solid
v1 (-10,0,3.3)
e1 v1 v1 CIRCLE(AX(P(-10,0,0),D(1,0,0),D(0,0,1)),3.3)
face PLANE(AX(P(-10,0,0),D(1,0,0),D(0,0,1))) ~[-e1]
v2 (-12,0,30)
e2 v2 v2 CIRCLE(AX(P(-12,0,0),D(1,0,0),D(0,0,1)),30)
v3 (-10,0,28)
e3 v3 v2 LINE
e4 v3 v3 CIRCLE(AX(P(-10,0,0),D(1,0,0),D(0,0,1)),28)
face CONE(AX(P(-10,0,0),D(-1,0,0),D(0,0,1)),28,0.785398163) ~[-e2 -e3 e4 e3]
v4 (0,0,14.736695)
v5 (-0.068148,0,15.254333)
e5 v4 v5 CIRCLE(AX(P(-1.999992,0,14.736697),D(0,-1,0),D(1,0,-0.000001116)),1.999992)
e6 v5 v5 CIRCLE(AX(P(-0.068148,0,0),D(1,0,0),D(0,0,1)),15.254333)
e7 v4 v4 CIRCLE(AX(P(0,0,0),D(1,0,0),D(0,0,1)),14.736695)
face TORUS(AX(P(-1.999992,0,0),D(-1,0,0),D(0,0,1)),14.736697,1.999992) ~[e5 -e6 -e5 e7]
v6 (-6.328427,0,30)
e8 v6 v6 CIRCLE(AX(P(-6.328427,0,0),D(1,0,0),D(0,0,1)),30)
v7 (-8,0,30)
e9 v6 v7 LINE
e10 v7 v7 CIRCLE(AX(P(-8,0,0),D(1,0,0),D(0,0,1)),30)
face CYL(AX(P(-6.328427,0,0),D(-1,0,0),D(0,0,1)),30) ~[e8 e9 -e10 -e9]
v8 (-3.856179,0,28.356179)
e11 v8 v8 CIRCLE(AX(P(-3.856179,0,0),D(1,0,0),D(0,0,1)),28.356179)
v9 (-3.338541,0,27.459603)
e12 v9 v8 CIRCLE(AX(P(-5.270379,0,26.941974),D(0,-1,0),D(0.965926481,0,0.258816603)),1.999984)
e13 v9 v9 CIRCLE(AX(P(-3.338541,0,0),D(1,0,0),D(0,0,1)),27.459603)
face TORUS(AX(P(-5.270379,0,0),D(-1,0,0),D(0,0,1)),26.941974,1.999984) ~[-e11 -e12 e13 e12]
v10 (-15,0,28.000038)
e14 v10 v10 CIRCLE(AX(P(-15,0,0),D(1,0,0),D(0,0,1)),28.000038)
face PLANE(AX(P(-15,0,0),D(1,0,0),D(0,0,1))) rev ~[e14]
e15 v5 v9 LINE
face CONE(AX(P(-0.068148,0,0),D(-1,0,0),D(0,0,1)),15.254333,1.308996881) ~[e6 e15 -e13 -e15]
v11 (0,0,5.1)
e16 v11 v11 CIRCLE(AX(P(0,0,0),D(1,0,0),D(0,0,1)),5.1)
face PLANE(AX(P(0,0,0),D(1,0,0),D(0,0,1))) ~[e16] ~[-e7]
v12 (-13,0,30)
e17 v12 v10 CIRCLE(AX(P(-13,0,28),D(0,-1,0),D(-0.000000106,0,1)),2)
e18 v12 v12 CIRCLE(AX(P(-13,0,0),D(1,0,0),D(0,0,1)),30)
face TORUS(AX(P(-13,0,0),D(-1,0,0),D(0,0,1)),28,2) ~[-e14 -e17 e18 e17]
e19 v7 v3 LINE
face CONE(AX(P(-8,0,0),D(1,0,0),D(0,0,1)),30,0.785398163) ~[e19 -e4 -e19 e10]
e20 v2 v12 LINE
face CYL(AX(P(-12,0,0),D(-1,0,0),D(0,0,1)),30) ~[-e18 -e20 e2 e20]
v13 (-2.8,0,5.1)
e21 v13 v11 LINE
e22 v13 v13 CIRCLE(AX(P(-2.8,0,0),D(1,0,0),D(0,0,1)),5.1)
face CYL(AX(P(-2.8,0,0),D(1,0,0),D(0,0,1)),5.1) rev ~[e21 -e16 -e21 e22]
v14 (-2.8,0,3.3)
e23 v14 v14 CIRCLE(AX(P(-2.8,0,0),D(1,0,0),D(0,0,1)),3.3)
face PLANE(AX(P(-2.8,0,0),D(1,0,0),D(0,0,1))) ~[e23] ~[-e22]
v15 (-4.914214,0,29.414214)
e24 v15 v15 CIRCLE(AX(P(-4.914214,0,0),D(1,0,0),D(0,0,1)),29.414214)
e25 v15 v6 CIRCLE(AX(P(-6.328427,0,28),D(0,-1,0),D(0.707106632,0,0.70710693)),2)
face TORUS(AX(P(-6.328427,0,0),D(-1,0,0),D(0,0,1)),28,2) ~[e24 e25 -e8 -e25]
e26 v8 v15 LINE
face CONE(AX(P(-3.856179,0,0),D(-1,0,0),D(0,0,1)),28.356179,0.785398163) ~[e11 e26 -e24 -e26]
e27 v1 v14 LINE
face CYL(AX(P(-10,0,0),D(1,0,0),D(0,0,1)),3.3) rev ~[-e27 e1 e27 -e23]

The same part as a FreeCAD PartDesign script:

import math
import FreeCAD as App
import Part
import Sketcher
Q = App.Units.Quantity

doc = App.newDocument("Part")
body = doc.addObject("PartDesign::Body", "Body")

sketch1 = body.newObject("Sketcher::SketchObject", "Sketch")
sketch1.AttachmentSupport = (doc.getObject("XZ_Plane"), [""])
sketch1.MapMode = "FlatFace"
sketch1.addGeometry([
    Part.ArcOfCircle(Part.Circle(App.Vector(-1.999992, 14.736697, 0), App.Vector(0, 0, 1), 1.999992), math.radians(-0.000064), math.radians(14.999991)),
    Part.LineSegment(App.Vector(-0.068148, 15.254333, 0), App.Vector(-3.338541, 27.459603, 0)),
    Part.ArcOfCircle(Part.Circle(App.Vector(-5.270379, 26.941974, 0), App.Vector(0, 0, 1), 1.999984), math.radians(14.999855), math.radians(45.000107)),
    Part.LineSegment(App.Vector(-3.856179, 28.356179, 0), App.Vector(-4.914214, 29.414214, 0)),
    Part.ArcOfCircle(Part.Circle(App.Vector(-6.328427, 28, 0), App.Vector(0, 0, 1), 2), math.radians(45.000012), math.radians(90.000002)),
    Part.LineSegment(App.Vector(-6.328427, 30, 0), App.Vector(-8, 30, 0)),
    Part.LineSegment(App.Vector(-8, 30, 0), App.Vector(-10, 28, 0)),
    Part.LineSegment(App.Vector(-10, 28, 0), App.Vector(-12, 30, 0)),
    Part.LineSegment(App.Vector(-12, 30, 0), App.Vector(-13, 30, 0)),
    Part.ArcOfCircle(Part.Circle(App.Vector(-13, 28, 0), App.Vector(0, 0, 1), 2), math.radians(90.000006), math.radians(179.998905)),
    Part.LineSegment(App.Vector(-15, 28.000038, 0), App.Vector(-15, 0, 0)),
    Part.LineSegment(App.Vector(-15, 0, 0), App.Vector(-10, 0, 0)),
    Part.LineSegment(App.Vector(-10, 0, 0), App.Vector(-10, 3.3, 0)),
    Part.LineSegment(App.Vector(-10, 3.3, 0), App.Vector(-2.8, 3.3, 0)),
    Part.LineSegment(App.Vector(-2.8, 3.3, 0), App.Vector(-2.8, 5.1, 0)),
    Part.LineSegment(App.Vector(-2.8, 5.1, 0), App.Vector(0, 5.1, 0)),
    Part.LineSegment(App.Vector(0, 5.1, 0), App.Vector(0, 14.736695, 0)),
], False)
sketch1.addConstraint([
    Sketcher.Constraint("Tangent", 0, 2, 1, 1),
    Sketcher.Constraint("Coincident", 1, 2, 2, 1),
    Sketcher.Constraint("Tangent", 2, 2, 3, 1),
    Sketcher.Constraint("Tangent", 3, 2, 4, 1),
    Sketcher.Constraint("Tangent", 4, 2, 5, 1),
    Sketcher.Constraint("Coincident", 5, 2, 6, 1),
    Sketcher.Constraint("Coincident", 6, 2, 7, 1),
    Sketcher.Constraint("Coincident", 7, 2, 8, 1),
    Sketcher.Constraint("Tangent", 8, 2, 9, 1),
    Sketcher.Constraint("Coincident", 9, 2, 10, 1),
    Sketcher.Constraint("Coincident", 10, 2, 11, 1),
    Sketcher.Constraint("Coincident", 11, 2, 12, 1),
    Sketcher.Constraint("Coincident", 12, 2, 13, 1),
    Sketcher.Constraint("Coincident", 13, 2, 14, 1),
    Sketcher.Constraint("Coincident", 14, 2, 15, 1),
    Sketcher.Constraint("Coincident", 15, 2, 16, 1),
    Sketcher.Constraint("Tangent", 16, 2, 0, 1),
    Sketcher.Constraint("Horizontal", 5),
    Sketcher.Constraint("Horizontal", 8),
    Sketcher.Constraint("Vertical", 10),
    Sketcher.Constraint("Horizontal", 11),
    Sketcher.Constraint("Vertical", 12),
    Sketcher.Constraint("Horizontal", 13),
    Sketcher.Constraint("Vertical", 14),
    Sketcher.Constraint("Horizontal", 15),
    Sketcher.Constraint("Vertical", 16),
    Sketcher.Constraint("Equal", 4, 9),
    Sketcher.Constraint("PointOnObject", 10, 2, -1),
    Sketcher.Constraint("PointOnObject", 15, 2, -2),
    Sketcher.Constraint("Perpendicular", 3, 6),
    Sketcher.Constraint("Perpendicular", 6, 7),
    Sketcher.Constraint("Horizontal", 4, 3, 9, 3),
    Sketcher.Constraint("Horizontal", 9, 3, 6, 2),
    Sketcher.Constraint("Vertical", 6, 2, 11, 2),
    Sketcher.Constraint("Equal", 6, 7),
    Sketcher.Constraint("Radius", 4, 2.0),
    Sketcher.Constraint("DistanceX", 8, 2, 8, 1, 1.0),
    Sketcher.Constraint("Angle", 1, Q("105.000003 deg")),
    Sketcher.Constraint("DistanceX", 13, 1, 13, 2, 7.2),
    Sketcher.Constraint("DistanceX", 15, 1, 15, 2, 2.8),
    Sketcher.Constraint("DistanceY", 12, 1, 12, 2, 3.3),
    Sketcher.Constraint("DistanceY", 14, 1, 14, 2, 1.8),
    Sketcher.Constraint("DistanceY", -1, 1, 4, 3, 28.0),
    Sketcher.Constraint("Radius", 0, 1.999992),
    Sketcher.Constraint("Radius", 2, 1.999984),
    Sketcher.Constraint("DistanceY", 10, 2, 10, 1, 28.000038),
    Sketcher.Constraint("DistanceX", 5, 2, 5, 1, 1.671573),
    Sketcher.Constraint("DistanceY", 16, 1, 16, 2, 9.636695),
    Sketcher.Constraint("DistanceX", 1, 2, -1, 1, 3.338541),
])
revolution = body.newObject("PartDesign::Revolution", "Revolution")
revolution.Profile = sketch1
revolution.ReferenceAxis = (sketch1, ["H_Axis"])
revolution.Angle = 360

doc.recompute()
